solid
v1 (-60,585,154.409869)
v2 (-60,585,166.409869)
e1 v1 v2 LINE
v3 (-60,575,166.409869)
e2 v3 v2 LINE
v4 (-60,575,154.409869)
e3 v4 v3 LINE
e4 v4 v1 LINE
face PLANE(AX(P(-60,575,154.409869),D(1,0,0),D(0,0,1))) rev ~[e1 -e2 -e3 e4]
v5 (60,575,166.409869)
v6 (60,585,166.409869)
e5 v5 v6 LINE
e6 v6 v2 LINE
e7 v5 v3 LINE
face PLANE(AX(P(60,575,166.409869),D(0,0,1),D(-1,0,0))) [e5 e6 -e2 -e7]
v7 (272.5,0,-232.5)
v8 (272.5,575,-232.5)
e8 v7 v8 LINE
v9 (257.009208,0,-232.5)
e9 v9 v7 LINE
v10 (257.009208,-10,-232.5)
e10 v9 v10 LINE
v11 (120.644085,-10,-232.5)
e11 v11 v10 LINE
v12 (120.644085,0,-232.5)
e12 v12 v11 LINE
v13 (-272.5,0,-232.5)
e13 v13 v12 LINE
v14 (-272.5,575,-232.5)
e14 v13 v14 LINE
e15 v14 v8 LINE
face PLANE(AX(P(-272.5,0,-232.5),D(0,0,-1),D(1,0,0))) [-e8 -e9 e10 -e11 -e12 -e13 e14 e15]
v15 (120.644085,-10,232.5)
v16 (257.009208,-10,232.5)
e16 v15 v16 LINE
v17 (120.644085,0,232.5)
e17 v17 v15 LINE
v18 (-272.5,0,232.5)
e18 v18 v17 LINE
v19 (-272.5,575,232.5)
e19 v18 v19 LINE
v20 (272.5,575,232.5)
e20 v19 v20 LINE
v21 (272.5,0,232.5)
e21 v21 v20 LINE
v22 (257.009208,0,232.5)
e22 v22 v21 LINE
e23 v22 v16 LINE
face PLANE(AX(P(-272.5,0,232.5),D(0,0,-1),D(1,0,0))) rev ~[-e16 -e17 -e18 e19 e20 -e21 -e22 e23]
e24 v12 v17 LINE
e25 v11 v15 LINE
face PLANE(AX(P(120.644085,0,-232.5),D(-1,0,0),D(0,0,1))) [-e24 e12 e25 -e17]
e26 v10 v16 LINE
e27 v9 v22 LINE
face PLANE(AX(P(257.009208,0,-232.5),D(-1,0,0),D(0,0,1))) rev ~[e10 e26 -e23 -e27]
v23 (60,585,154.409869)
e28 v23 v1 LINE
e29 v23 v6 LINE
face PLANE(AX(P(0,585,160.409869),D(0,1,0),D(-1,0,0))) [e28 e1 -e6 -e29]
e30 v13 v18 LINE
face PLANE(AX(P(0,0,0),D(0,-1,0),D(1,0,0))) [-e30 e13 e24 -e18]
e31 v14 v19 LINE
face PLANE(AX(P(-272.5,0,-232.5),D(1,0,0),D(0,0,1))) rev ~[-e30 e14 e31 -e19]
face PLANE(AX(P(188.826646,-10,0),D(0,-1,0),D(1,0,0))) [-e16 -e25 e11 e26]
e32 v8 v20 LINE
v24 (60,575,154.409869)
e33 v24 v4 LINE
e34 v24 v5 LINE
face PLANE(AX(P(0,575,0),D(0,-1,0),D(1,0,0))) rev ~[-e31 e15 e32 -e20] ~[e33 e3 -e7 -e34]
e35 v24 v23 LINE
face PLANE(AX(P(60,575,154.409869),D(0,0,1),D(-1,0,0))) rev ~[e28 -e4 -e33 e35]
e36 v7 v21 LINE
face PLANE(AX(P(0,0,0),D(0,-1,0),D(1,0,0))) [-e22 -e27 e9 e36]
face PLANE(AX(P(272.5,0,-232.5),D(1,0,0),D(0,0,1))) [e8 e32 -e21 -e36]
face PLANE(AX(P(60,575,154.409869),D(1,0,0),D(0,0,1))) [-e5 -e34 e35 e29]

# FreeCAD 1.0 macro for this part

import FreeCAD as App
import Part
import Sketcher

V = App.Vector
Q = App.Units.Quantity

doc = App.newDocument("Part")
body = doc.addObject("PartDesign::Body", "Body")

# Sketch on XZ plane
sketch1 = body.newObject("Sketcher::SketchObject", "Sketch")
sketch1.AttachmentSupport = (doc.getObject("XZ_Plane"), [""])
sketch1.MapMode = "FlatFace"
sketch1.addGeometry(Part.LineSegment(V(-272, 232, 0), V(-272, -232, 0)), False)
sketch1.addGeometry(Part.LineSegment(V(-272, -232, 0), V(272, -232, 0)), False)
sketch1.addGeometry(Part.LineSegment(V(272, -232, 0), V(272, 232, 0)), False)
sketch1.addGeometry(Part.LineSegment(V(272, 232, 0), V(-272, 232, 0)), False)
sketch1.addConstraint(Sketcher.Constraint("Coincident", 0, 2, 1, 1))
sketch1.addConstraint(Sketcher.Constraint("Coincident", 1, 2, 2, 1))
sketch1.addConstraint(Sketcher.Constraint("Coincident", 2, 2, 3, 1))
sketch1.addConstraint(Sketcher.Constraint("Coincident", 3, 2, 0, 1))
sketch1.addConstraint(Sketcher.Constraint("Vertical", 0))
sketch1.addConstraint(Sketcher.Constraint("Horizontal", 1))
sketch1.addConstraint(Sketcher.Constraint("Vertical", 2))
sketch1.addConstraint(Sketcher.Constraint("Horizontal", 3))
sketch1.addConstraint(Sketcher.Constraint("Symmetric", 0, 2, 2, 2, -1, 1))
sketch1.addConstraint(Sketcher.Constraint("DistanceX", 1, 1, 1, 2, Q("545 mm")))
sketch1.addConstraint(Sketcher.Constraint("DistanceY", 0, 2, 0, 1, Q("465 mm")))
pad1 = body.newObject("PartDesign::Pad", "Pad")
pad1.Profile = sketch1
pad1.Length = 575
pad1.Reversed = True

# Sketch on XZ plane
sketch2 = body.newObject("Sketcher::SketchObject", "Sketch001")
sketch2.AttachmentSupport = (doc.getObject("XZ_Plane"), [""])
sketch2.MapMode = "FlatFace"
sketch2.AttachmentOffset = App.Placement(V(0, 0, -575), App.Rotation())
sketch2.addGeometry(Part.LineSegment(V(60, 166, 0), V(60, 154, 0)), False)
sketch2.addGeometry(Part.LineSegment(V(60, 154, 0), V(-60, 154, 0)), False)
sketch2.addGeometry(Part.LineSegment(V(-60, 154, 0), V(-60, 166, 0)), False)
sketch2.addGeometry(Part.LineSegment(V(-60, 166, 0), V(60, 166, 0)), False)
sketch2.addConstraint(Sketcher.Constraint("Coincident", 0, 2, 1, 1))
sketch2.addConstraint(Sketcher.Constraint("Coincident", 1, 2, 2, 1))
sketch2.addConstraint(Sketcher.Constraint("Coincident", 2, 2, 3, 1))
sketch2.addConstraint(Sketcher.Constraint("Coincident", 3, 2, 0, 1))
sketch2.addConstraint(Sketcher.Constraint("Vertical", 0))
sketch2.addConstraint(Sketcher.Constraint("Horizontal", 1))
sketch2.addConstraint(Sketcher.Constraint("Vertical", 2))
sketch2.addConstraint(Sketcher.Constraint("Horizontal", 3))
sketch2.addConstraint(Sketcher.Constraint("DistanceX", 1, 2, 1, 1, Q("120 mm")))
sketch2.addConstraint(Sketcher.Constraint("DistanceY", 0, 2, 0, 1, Q("12 mm")))
sketch2.addConstraint(Sketcher.Constraint("DistanceX", -1, 1, 0, 2, Q("60 mm")))
sketch2.addConstraint(Sketcher.Constraint("DistanceY", -1, 1, 0, 2, Q("154.409869 mm")))
pad2 = body.newObject("PartDesign::Pad", "Pad001")
pad2.Profile = sketch2
pad2.Length = 10
pad2.Reversed = True

# Sketch on XZ plane
sketch3 = body.newObject("Sketcher::SketchObject", "Sketch002")
sketch3.AttachmentSupport = (doc.getObject("XZ_Plane"), [""])
sketch3.MapMode = "FlatFace"
sketch3.addGeometry(Part.LineSegment(V(121, 232, 0), V(121, -232, 0)), False)
sketch3.addGeometry(Part.LineSegment(V(121, -232, 0), V(257, -232, 0)), False)
sketch3.addGeometry(Part.LineSegment(V(257, -232, 0), V(257, 232, 0)), False)
sketch3.addGeometry(Part.LineSegment(V(257, 232, 0), V(121, 232, 0)), False)
sketch3.addConstraint(Sketcher.Constraint("Coincident", 0, 2, 1, 1))
sketch3.addConstraint(Sketcher.Constraint("Coincident", 1, 2, 2, 1))
sketch3.addConstraint(Sketcher.Constraint("Coincident", 2, 2, 3, 1))
sketch3.addConstraint(Sketcher.Constraint("Coincident", 3, 2, 0, 1))
sketch3.addConstraint(Sketcher.Constraint("Vertical", 0))
sketch3.addConstraint(Sketcher.Constraint("Horizontal", 1))
sketch3.addConstraint(Sketcher.Constraint("Vertical", 2))
sketch3.addConstraint(Sketcher.Constraint("Horizontal", 3))
sketch3.addConstraint(Sketcher.Constraint("DistanceY", 0, 2, 0, 1, Q("465 mm")))
sketch3.addConstraint(Sketcher.Constraint("DistanceY", 0, 2, -1, 1, Q("232.5 mm")))
sketch3.addConstraint(Sketcher.Constraint("DistanceX", 1, 1, 1, 2, Q("136.365123 mm")))
sketch3.addConstraint(Sketcher.Constraint("DistanceX", -1, 1, 0, 2, Q("120.644085 mm")))
pad3 = body.newObject("PartDesign::Pad", "Pad002")
pad3.Profile = sketch3
pad3.Length = 10

doc.recompute()
